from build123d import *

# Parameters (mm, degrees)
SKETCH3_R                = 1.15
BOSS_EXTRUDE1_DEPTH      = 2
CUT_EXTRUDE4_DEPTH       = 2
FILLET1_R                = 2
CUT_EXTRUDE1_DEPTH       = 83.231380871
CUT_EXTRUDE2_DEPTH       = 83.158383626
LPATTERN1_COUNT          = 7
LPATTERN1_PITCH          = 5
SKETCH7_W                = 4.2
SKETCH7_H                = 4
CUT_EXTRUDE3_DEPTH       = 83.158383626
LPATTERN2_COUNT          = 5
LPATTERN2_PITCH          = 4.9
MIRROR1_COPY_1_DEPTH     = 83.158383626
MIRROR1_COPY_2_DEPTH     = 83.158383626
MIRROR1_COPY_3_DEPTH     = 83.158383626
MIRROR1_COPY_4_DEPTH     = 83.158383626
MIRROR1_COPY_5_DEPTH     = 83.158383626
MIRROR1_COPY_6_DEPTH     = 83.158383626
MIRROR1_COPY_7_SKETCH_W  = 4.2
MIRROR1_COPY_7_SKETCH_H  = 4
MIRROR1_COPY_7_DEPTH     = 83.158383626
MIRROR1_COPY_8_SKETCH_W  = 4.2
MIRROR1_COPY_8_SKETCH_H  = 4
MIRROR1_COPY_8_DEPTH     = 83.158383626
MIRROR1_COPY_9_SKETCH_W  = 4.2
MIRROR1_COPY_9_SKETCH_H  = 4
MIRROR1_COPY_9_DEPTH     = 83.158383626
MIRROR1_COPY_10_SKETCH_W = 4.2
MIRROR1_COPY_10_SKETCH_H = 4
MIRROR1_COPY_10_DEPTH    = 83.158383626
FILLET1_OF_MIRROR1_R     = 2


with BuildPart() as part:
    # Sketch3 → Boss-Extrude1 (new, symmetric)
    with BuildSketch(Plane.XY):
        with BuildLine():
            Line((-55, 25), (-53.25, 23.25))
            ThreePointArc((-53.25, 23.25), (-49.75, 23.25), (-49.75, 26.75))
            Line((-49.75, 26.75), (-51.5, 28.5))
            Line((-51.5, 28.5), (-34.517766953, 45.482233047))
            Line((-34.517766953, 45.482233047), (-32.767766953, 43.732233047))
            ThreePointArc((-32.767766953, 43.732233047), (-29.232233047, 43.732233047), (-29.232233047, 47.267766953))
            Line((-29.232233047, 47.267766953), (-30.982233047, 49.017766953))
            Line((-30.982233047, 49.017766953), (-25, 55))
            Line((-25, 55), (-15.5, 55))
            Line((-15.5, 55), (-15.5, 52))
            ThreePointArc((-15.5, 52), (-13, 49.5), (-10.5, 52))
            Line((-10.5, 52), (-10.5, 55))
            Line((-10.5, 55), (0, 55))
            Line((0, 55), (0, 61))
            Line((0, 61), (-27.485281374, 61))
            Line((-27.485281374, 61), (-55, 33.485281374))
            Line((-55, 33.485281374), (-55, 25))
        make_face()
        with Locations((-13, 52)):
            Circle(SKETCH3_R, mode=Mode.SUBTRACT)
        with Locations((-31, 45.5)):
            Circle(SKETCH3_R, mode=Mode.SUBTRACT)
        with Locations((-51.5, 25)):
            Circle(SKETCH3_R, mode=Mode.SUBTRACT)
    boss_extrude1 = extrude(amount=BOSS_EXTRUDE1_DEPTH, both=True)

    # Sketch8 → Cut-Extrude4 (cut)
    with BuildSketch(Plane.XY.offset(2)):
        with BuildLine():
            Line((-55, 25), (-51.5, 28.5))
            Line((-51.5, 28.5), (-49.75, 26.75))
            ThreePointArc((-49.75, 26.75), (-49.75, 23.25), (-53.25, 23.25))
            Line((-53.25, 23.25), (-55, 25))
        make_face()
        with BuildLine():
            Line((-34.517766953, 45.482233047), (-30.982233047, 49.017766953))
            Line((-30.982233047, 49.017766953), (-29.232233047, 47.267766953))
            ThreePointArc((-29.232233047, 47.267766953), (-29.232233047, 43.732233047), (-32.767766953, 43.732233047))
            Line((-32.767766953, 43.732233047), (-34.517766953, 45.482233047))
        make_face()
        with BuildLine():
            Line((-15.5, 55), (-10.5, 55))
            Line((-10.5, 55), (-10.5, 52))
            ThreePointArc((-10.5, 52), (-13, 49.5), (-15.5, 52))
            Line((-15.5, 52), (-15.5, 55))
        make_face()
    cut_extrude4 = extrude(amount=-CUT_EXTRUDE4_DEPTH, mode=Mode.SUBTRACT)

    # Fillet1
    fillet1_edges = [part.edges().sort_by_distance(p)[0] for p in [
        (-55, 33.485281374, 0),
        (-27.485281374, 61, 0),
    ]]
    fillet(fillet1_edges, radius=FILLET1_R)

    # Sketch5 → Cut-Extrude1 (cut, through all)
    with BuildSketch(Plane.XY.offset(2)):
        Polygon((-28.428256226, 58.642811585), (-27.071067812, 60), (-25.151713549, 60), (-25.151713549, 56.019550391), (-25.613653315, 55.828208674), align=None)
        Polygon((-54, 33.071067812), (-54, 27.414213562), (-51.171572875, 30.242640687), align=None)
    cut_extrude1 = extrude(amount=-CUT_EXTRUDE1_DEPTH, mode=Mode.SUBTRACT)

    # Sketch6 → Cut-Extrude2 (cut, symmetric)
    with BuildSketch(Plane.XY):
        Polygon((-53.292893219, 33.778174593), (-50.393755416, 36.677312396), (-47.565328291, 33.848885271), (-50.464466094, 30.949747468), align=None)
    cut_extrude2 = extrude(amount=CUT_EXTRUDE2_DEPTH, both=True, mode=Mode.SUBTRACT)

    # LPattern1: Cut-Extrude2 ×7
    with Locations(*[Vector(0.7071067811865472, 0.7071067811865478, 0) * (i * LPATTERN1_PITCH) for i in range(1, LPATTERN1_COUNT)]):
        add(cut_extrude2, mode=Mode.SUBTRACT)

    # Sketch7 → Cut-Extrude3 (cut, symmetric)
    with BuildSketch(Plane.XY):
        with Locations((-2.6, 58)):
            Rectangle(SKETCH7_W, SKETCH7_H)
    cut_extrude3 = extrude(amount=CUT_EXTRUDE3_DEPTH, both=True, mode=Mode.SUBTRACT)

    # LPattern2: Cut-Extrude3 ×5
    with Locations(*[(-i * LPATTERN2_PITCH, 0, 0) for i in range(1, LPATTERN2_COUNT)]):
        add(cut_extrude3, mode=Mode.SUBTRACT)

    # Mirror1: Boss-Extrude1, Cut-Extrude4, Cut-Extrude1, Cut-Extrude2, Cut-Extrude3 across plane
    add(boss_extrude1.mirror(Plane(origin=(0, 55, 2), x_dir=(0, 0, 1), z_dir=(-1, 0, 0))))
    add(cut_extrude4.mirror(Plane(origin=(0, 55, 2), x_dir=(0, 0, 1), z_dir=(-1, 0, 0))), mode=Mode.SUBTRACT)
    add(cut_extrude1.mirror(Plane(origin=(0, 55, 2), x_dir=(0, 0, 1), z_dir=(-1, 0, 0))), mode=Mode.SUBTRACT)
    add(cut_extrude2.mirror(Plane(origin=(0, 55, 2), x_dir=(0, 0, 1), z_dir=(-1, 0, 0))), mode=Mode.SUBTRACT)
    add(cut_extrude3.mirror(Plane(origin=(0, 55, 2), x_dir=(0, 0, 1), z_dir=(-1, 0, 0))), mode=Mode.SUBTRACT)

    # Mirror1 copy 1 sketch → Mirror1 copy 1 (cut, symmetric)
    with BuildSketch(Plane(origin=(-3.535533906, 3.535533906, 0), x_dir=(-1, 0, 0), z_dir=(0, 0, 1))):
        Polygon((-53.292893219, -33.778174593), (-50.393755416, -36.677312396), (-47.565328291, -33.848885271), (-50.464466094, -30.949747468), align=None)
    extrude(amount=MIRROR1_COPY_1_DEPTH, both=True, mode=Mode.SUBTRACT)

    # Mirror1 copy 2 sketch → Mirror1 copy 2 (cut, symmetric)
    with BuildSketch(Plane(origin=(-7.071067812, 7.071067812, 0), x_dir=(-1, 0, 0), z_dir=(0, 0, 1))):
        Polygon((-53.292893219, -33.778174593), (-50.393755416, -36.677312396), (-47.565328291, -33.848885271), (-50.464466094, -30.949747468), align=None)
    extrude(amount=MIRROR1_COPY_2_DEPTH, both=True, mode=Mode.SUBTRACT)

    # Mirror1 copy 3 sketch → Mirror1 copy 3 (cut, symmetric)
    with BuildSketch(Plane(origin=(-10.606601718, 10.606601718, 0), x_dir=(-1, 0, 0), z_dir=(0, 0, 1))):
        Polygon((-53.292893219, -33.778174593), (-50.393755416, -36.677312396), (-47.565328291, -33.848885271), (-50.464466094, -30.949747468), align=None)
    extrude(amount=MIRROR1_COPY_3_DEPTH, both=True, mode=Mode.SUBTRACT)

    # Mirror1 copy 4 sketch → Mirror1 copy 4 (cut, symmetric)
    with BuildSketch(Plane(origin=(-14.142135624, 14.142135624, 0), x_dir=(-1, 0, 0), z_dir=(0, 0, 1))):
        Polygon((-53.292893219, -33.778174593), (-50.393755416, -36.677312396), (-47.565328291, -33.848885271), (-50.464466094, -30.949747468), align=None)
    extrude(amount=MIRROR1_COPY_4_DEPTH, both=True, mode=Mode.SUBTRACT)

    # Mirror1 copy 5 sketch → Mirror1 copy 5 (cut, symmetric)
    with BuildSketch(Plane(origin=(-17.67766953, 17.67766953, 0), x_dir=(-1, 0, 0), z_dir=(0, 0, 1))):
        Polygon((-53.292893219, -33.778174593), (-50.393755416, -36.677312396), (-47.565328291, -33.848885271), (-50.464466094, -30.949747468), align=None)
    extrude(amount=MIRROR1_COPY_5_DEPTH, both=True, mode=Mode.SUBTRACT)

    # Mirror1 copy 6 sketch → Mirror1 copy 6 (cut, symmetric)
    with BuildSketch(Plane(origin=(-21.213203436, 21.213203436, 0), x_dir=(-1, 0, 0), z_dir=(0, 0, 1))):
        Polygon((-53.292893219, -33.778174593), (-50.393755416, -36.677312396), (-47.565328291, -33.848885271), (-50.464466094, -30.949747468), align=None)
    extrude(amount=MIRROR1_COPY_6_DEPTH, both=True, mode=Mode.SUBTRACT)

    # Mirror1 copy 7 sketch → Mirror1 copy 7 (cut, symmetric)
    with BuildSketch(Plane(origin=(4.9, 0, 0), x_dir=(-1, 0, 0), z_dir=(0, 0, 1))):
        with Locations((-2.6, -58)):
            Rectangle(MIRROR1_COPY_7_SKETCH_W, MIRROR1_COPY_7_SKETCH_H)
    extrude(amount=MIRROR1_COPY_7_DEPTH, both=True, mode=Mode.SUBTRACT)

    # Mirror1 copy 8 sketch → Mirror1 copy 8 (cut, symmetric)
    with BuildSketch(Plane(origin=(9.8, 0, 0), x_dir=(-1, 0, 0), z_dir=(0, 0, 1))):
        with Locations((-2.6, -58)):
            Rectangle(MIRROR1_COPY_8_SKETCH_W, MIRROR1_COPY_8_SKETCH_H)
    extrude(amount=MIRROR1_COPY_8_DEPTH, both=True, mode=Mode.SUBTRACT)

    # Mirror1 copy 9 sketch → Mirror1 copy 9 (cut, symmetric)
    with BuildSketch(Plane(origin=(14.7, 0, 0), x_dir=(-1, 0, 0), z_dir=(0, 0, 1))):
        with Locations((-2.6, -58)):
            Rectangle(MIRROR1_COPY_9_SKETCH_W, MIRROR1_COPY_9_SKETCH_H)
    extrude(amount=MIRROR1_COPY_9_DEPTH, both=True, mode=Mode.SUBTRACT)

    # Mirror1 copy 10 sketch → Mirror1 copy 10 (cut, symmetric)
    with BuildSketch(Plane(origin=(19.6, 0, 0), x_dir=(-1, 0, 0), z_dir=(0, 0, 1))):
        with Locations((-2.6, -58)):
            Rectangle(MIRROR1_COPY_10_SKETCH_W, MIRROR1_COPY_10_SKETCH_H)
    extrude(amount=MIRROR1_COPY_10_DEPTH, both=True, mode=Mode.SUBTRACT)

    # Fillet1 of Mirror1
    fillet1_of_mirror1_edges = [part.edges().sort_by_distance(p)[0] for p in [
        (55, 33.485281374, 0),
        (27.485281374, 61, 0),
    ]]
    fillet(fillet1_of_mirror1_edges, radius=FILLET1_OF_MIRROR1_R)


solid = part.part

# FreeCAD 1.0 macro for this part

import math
import FreeCAD as App
import Part
import Sketcher
Q = App.Units.Quantity


def edges_at(feature, points):
    """Names of the edges that pass closest to the given points."""
    edges = feature.Shape.Edges
    near = lambda p: min(range(len(edges)), key=lambda i: edges[i].distToShape(Part.Vertex(*p))[0])
    return sorted({f"Edge{near(p) + 1}" for p in points})

doc = App.newDocument("Part")
body = doc.addObject("PartDesign::Body", "Body")

# Sketch on XY plane
sketch1 = body.newObject("Sketcher::SketchObject", "Sketch")
sketch1.AttachmentSupport = (doc.getObject("XY_Plane"), [""])
sketch1.MapMode = "FlatFace"
sketch1.addGeometry([
    Part.LineSegment(App.Vector(-55, 25, 0), App.Vector(-53.2, 23.2, 0)),  # 0
    Part.ArcOfCircle(Part.Circle(App.Vector(-51.5, 25, 0), App.Vector(0, 0, 1), 2.5), math.radians(-135), math.radians(45)),  # 1
    Part.LineSegment(App.Vector(-49.8, 26.8, 0), App.Vector(-51.5, 28.5, 0)),  # 2
    Part.LineSegment(App.Vector(-51.5, 28.5, 0), App.Vector(-34.5, 45.5, 0)),  # 3
    Part.LineSegment(App.Vector(-34.5, 45.5, 0), App.Vector(-32.8, 43.7, 0)),  # 4
    Part.ArcOfCircle(Part.Circle(App.Vector(-31, 45.5, 0), App.Vector(0, 0, 1), 2.5), math.radians(-135), math.radians(45)),  # 5
    Part.LineSegment(App.Vector(-29.2, 47.3, 0), App.Vector(-31, 49, 0)),  # 6
    Part.LineSegment(App.Vector(-31, 49, 0), App.Vector(-25, 55, 0)),  # 7
    Part.LineSegment(App.Vector(-25, 55, 0), App.Vector(-15.5, 55, 0)),  # 8
    Part.LineSegment(App.Vector(-15.5, 55, 0), App.Vector(-15.5, 52, 0)),  # 9
    Part.ArcOfCircle(Part.Circle(App.Vector(-13, 52, 0), App.Vector(0, 0, 1), 2.5), math.radians(180), math.radians(360)),  # 10
    Part.LineSegment(App.Vector(-10.5, 52, 0), App.Vector(-10.5, 55, 0)),  # 11
    Part.LineSegment(App.Vector(-10.5, 55, 0), App.Vector(0, 55, 0)),  # 12
    Part.LineSegment(App.Vector(0, 55, 0), App.Vector(0, 61, 0)),  # 13
    Part.LineSegment(App.Vector(0, 61, 0), App.Vector(-27.5, 61, 0)),  # 14
    Part.LineSegment(App.Vector(-27.5, 61, 0), App.Vector(-55, 33.5, 0)),  # 15
    Part.LineSegment(App.Vector(-55, 33.5, 0), App.Vector(-55, 25, 0)),  # 16
    Part.Circle(App.Vector(-51.5, 25, 0), App.Vector(0, 0, 1), 1.1),  # 17
    Part.Circle(App.Vector(-31, 45.5, 0), App.Vector(0, 0, 1), 1.1),  # 18
    Part.Circle(App.Vector(-13, 52, 0), App.Vector(0, 0, 1), 1.1),  # 19
], False)
sketch1.addConstraint([
    Sketcher.Constraint("Tangent", 0, 2, 1, 1),
    Sketcher.Constraint("Tangent", 1, 2, 2, 1),
    Sketcher.Constraint("Coincident", 2, 2, 3, 1),
    Sketcher.Constraint("Coincident", 3, 2, 4, 1),
    Sketcher.Constraint("Tangent", 4, 2, 5, 1),
    Sketcher.Constraint("Tangent", 5, 2, 6, 1),
    Sketcher.Constraint("Coincident", 6, 2, 7, 1),
    Sketcher.Constraint("Coincident", 7, 2, 8, 1),
    Sketcher.Constraint("Coincident", 8, 2, 9, 1),
    Sketcher.Constraint("Tangent", 9, 2, 10, 1),
    Sketcher.Constraint("Tangent", 10, 2, 11, 1),
    Sketcher.Constraint("Coincident", 11, 2, 12, 1),
    Sketcher.Constraint("Coincident", 12, 2, 13, 1),
    Sketcher.Constraint("Coincident", 13, 2, 14, 1),
    Sketcher.Constraint("Coincident", 14, 2, 15, 1),
    Sketcher.Constraint("Coincident", 15, 2, 16, 1),
    Sketcher.Constraint("Coincident", 16, 2, 0, 1),
    Sketcher.Constraint("Horizontal", 8),
    Sketcher.Constraint("Vertical", 9),
    Sketcher.Constraint("Vertical", 11),
    Sketcher.Constraint("Horizontal", 12),
    Sketcher.Constraint("Vertical", 13),
    Sketcher.Constraint("Horizontal", 14),
    Sketcher.Constraint("Vertical", 16),
    Sketcher.Constraint("Coincident", 17, 3, 1, 3),
    Sketcher.Constraint("Coincident", 18, 3, 5, 3),
    Sketcher.Constraint("Coincident", 19, 3, 10, 3),
    Sketcher.Constraint("Equal", 5, 10),
    Sketcher.Constraint("Equal", 17, 18),
    Sketcher.Constraint("Equal", 18, 19),
    Sketcher.Constraint("PointOnObject", 12, 2, -2),
    Sketcher.Constraint("Parallel", 0, 2),
    Sketcher.Constraint("Perpendicular", 2, 3),
    Sketcher.Constraint("Perpendicular", 3, 4),
    Sketcher.Constraint("Parallel", 4, 6),
    Sketcher.Constraint("Perpendicular", 6, 7),
    Sketcher.Constraint("Parallel", 7, 15),
    Sketcher.Constraint("Horizontal", 8, 2, 11, 2),
    Sketcher.Constraint("Horizontal", 17, 3, 16, 2),
    Sketcher.Constraint("Vertical", 17, 3, 2, 2),
    Sketcher.Constraint("Equal", 0, 2),
    Sketcher.Constraint("Equal", 2, 4),
    Sketcher.Constraint("Equal", 4, 6),
    Sketcher.Constraint("Diameter", 17, 2.3),
    Sketcher.Constraint("Radius", 5, 2.5),
    Sketcher.Constraint("DistanceY", 9, 2, 9, 1, 3.0),
    Sketcher.Constraint("DistanceY", 13, 1, 13, 2, 6.0),
    Sketcher.Constraint("DistanceX", 8, 1, 8, 2, 9.5),
    Sketcher.Constraint("DistanceX", 12, 1, 12, 2, 10.5),
    Sketcher.Constraint("DistanceY", -1, 1, 1, 3, 25.0),
    Sketcher.Constraint("DistanceX", 5, 3, -1, 1, 31.0),
    Sketcher.Constraint("DistanceY", -1, 1, 10, 3, 52.0),
    Sketcher.Constraint("DistanceY", 2, 2, 5, 3, 17.0),
    Sketcher.Constraint("DistanceX", 14, 2, 14, 1, 27.485281),
])
pad1 = body.newObject("PartDesign::Pad", "Pad")
pad1.Profile = sketch1
pad1.Length = 4
pad1.Midplane = True

# Sketch on XY plane
sketch2 = body.newObject("Sketcher::SketchObject", "Sketch001")
sketch2.AttachmentSupport = (doc.getObject("XY_Plane"), [""])
sketch2.MapMode = "FlatFace"
sketch2.AttachmentOffset = App.Placement(App.Vector(0, 0, 2), App.Rotation())
sketch2.addGeometry([
    Part.LineSegment(App.Vector(-51.5, 28.5, 0), App.Vector(-55, 25, 0)),  # 0
    Part.LineSegment(App.Vector(-55, 25, 0), App.Vector(-53.2, 23.2, 0)),  # 1
    Part.ArcOfCircle(Part.Circle(App.Vector(-51.5, 25, 0), App.Vector(0, 0, 1), 2.5), math.radians(-135), math.radians(45)),  # 2
    Part.LineSegment(App.Vector(-49.8, 26.8, 0), App.Vector(-51.5, 28.5, 0)),  # 3
    Part.LineSegment(App.Vector(-31, 49, 0), App.Vector(-34.5, 45.5, 0)),  # 4
    Part.LineSegment(App.Vector(-34.5, 45.5, 0), App.Vector(-32.8, 43.7, 0)),  # 5
    Part.ArcOfCircle(Part.Circle(App.Vector(-31, 45.5, 0), App.Vector(0, 0, 1), 2.5), math.radians(-135), math.radians(45)),  # 6
    Part.LineSegment(App.Vector(-29.2, 47.3, 0), App.Vector(-31, 49, 0)),  # 7
    Part.LineSegment(App.Vector(-10.5, 55, 0), App.Vector(-15.5, 55, 0)),  # 8
    Part.LineSegment(App.Vector(-15.5, 55, 0), App.Vector(-15.5, 52, 0)),  # 9
    Part.ArcOfCircle(Part.Circle(App.Vector(-13, 52, 0), App.Vector(0, 0, 1), 2.5), math.radians(180), math.radians(360)),  # 10
    Part.LineSegment(App.Vector(-10.5, 52, 0), App.Vector(-10.5, 55, 0)),  # 11
], False)
sketch2.addConstraint([
    Sketcher.Constraint("Coincident", 0, 2, 1, 1),
    Sketcher.Constraint("Tangent", 1, 2, 2, 1),
    Sketcher.Constraint("Tangent", 2, 2, 3, 1),
    Sketcher.Constraint("Coincident", 3, 2, 0, 1),
    Sketcher.Constraint("Coincident", 4, 2, 5, 1),
    Sketcher.Constraint("Tangent", 5, 2, 6, 1),
    Sketcher.Constraint("Tangent", 6, 2, 7, 1),
    Sketcher.Constraint("Coincident", 7, 2, 4, 1),
    Sketcher.Constraint("Coincident", 8, 2, 9, 1),
    Sketcher.Constraint("Tangent", 9, 2, 10, 1),
    Sketcher.Constraint("Tangent", 10, 2, 11, 1),
    Sketcher.Constraint("Coincident", 11, 2, 8, 1),
    Sketcher.Constraint("Horizontal", 8),
    Sketcher.Constraint("Vertical", 9),
    Sketcher.Constraint("Vertical", 11),
    Sketcher.Constraint("Equal", 6, 10),
    Sketcher.Constraint("Perpendicular", 0, 1),
    Sketcher.Constraint("Parallel", 1, 3),
    Sketcher.Constraint("Perpendicular", 3, 4),
    Sketcher.Constraint("Perpendicular", 4, 5),
    Sketcher.Constraint("Parallel", 5, 7),
    Sketcher.Constraint("Horizontal", 2, 3, 0, 2),
    Sketcher.Constraint("Vertical", 2, 3, 3, 2),
    Sketcher.Constraint("Equal", 3, 5),
    Sketcher.Constraint("Radius", 6, 2.5),
    Sketcher.Constraint("DistanceY", 9, 2, 9, 1, 3.0),
    Sketcher.Constraint("DistanceY", -1, 1, 2, 3, 25.0),
    Sketcher.Constraint("DistanceX", 6, 3, -1, 1, 31.0),
    Sketcher.Constraint("DistanceX", 10, 3, -1, 1, 13.0),
    Sketcher.Constraint("DistanceY", -1, 1, 10, 3, 52.0),
    Sketcher.Constraint("DistanceX", 0, 2, -1, 1, 55.0),
    Sketcher.Constraint("DistanceY", 3, 2, 6, 3, 17.0),
    Sketcher.Constraint("DistanceX", 2, 3, -1, 1, 51.5),
])
pocket1 = body.newObject("PartDesign::Pocket", "Pocket")
pocket1.Profile = sketch2
pocket1.Length = 2
doc.recompute()

fillet = body.newObject("PartDesign::Fillet", "Fillet")
fillet.Base = (pocket1, edges_at(pocket1, [(-55, 33.485, 0), (-27.485, 61, 0)]))
fillet.Radius = 2

# Sketch on XY plane
sketch3 = body.newObject("Sketcher::SketchObject", "Sketch002")
sketch3.AttachmentSupport = (doc.getObject("XY_Plane"), [""])
sketch3.MapMode = "FlatFace"
sketch3.AttachmentOffset = App.Placement(App.Vector(0, 0, 2), App.Rotation())
sketch3.addGeometry([
    Part.LineSegment(App.Vector(-27.1, 60, 0), App.Vector(-28.4, 58.6, 0)),  # 0
    Part.LineSegment(App.Vector(-28.4, 58.6, 0), App.Vector(-25.6, 55.8, 0)),  # 1
    Part.LineSegment(App.Vector(-25.6, 55.8, 0), App.Vector(-25.2, 56, 0)),  # 2
    Part.LineSegment(App.Vector(-25.2, 56, 0), App.Vector(-25.2, 60, 0)),  # 3
    Part.LineSegment(App.Vector(-25.2, 60, 0), App.Vector(-27.1, 60, 0)),  # 4
    Part.LineSegment(App.Vector(-54, 33.1, 0), App.Vector(-54, 27.4, 0)),  # 5
    Part.LineSegment(App.Vector(-54, 27.4, 0), App.Vector(-51.2, 30.2, 0)),  # 6
    Part.LineSegment(App.Vector(-51.2, 30.2, 0), App.Vector(-54, 33.1, 0)),  # 7
], False)
sketch3.addConstraint([
    Sketcher.Constraint("Coincident", 0, 2, 1, 1),
    Sketcher.Constraint("Coincident", 1, 2, 2, 1),
    Sketcher.Constraint("Coincident", 2, 2, 3, 1),
    Sketcher.Constraint("Coincident", 3, 2, 4, 1),
    Sketcher.Constraint("Coincident", 4, 2, 0, 1),
    Sketcher.Constraint("Coincident", 5, 2, 6, 1),
    Sketcher.Constraint("Coincident", 6, 2, 7, 1),
    Sketcher.Constraint("Coincident", 7, 2, 5, 1),
    Sketcher.Constraint("Vertical", 3),
    Sketcher.Constraint("Horizontal", 4),
    Sketcher.Constraint("Vertical", 5),
    Sketcher.Constraint("Perpendicular", 0, 1),
    Sketcher.Constraint("Perpendicular", 1, 6),
    Sketcher.Constraint("Perpendicular", 6, 7),
    Sketcher.Constraint("Equal", 6, 7),
    Sketcher.Constraint("Distance", 6, 4.0),
    Sketcher.Constraint("DistanceY", -1, 1, 3, 2, 60.0),
    Sketcher.Constraint("DistanceX", 5, 2, -1, 1, 54.0),
    Sketcher.Constraint("Angle", 2, Q("22.5 deg")),
    Sketcher.Constraint("Distance", 2, 0.5),
    Sketcher.Constraint("DistanceY", 3, 1, 3, 2, 3.98045),
    Sketcher.Constraint("DistanceY", 5, 2, 0, 2, 31.228598),
    Sketcher.Constraint("Distance", 1, 3.98045),
    Sketcher.Constraint("DistanceX", 6, 2, 1, 2, 25.55792),
])
pocket2 = body.newObject("PartDesign::Pocket", "Pocket001")
pocket2.Profile = sketch3
pocket2.Type = "ThroughAll"

# Sketch on XY plane
sketch4 = body.newObject("Sketcher::SketchObject", "Sketch003")
sketch4.AttachmentSupport = (doc.getObject("XY_Plane"), [""])
sketch4.MapMode = "FlatFace"
sketch4.addGeometry([
    Part.LineSegment(App.Vector(-50.4, 36.7, 0), App.Vector(-53.3, 33.8, 0)),
    Part.LineSegment(App.Vector(-53.3, 33.8, 0), App.Vector(-50.5, 30.9, 0)),
    Part.LineSegment(App.Vector(-50.5, 30.9, 0), App.Vector(-47.6, 33.8, 0)),
    Part.LineSegment(App.Vector(-47.6, 33.8, 0), App.Vector(-50.4, 36.7, 0)),
], False)
sketch4.addConstraint([
    Sketcher.Constraint("Coincident", 0, 2, 1, 1),
    Sketcher.Constraint("Coincident", 1, 2, 2, 1),
    Sketcher.Constraint("Coincident", 2, 2, 3, 1),
    Sketcher.Constraint("Coincident", 3, 2, 0, 1),
    Sketcher.Constraint("Perpendicular", 0, 1),
    Sketcher.Constraint("Perpendicular", 1, 2),
    Sketcher.Constraint("Perpendicular", 2, 3),
    Sketcher.Constraint("Angle", 0, Q("-135 deg")),
    Sketcher.Constraint("Distance", 1, 4.0),
    Sketcher.Constraint("Distance", 0, 4.1),
    Sketcher.Constraint("DistanceX", 2, 2, -1, 1, 47.565328),
    Sketcher.Constraint("DistanceY", -1, 1, 0, 2, 33.778175),
])
pocket3 = body.newObject("PartDesign::Pocket", "Pocket002")
pocket3.Profile = sketch4
pocket3.Length = 166.316767
pocket3.Midplane = True
doc.recompute()

datumline = body.newObject("PartDesign::Line", "DatumLine")
datumline.Placement = App.Placement(App.Vector(0, 0, 0), App.Rotation(App.Vector(0, 0, 1), App.Vector(0.707106781, 0.707106781, 0)))
linearpattern = body.newObject("PartDesign::LinearPattern", "LinearPattern")
linearpattern.Originals = [pocket3]
linearpattern.Direction = (datumline, [""])
linearpattern.Mode = "offset"
linearpattern.Offset = 5
linearpattern.Occurrences = 7
body.Tip = linearpattern

# Sketch on XY plane
sketch5 = body.newObject("Sketcher::SketchObject", "Sketch004")
sketch5.AttachmentSupport = (doc.getObject("XY_Plane"), [""])
sketch5.MapMode = "FlatFace"
sketch5.addGeometry([
    Part.LineSegment(App.Vector(-4.7, 60, 0), App.Vector(-4.7, 56, 0)),
    Part.LineSegment(App.Vector(-4.7, 56, 0), App.Vector(-0.5, 56, 0)),
    Part.LineSegment(App.Vector(-0.5, 56, 0), App.Vector(-0.5, 60, 0)),
    Part.LineSegment(App.Vector(-0.5, 60, 0), App.Vector(-4.7, 60, 0)),
], False)
sketch5.addConstraint([
    Sketcher.Constraint("Coincident", 0, 2, 1, 1),
    Sketcher.Constraint("Coincident", 1, 2, 2, 1),
    Sketcher.Constraint("Coincident", 2, 2, 3, 1),
    Sketcher.Constraint("Coincident", 3, 2, 0, 1),
    Sketcher.Constraint("Vertical", 0),
    Sketcher.Constraint("Horizontal", 1),
    Sketcher.Constraint("Vertical", 2),
    Sketcher.Constraint("Horizontal", 3),
    Sketcher.Constraint("DistanceY", 0, 2, 0, 1, 4.0),
    Sketcher.Constraint("DistanceX", 1, 1, 1, 2, 4.2),
    Sketcher.Constraint("DistanceY", -1, 1, 0, 2, 56.0),
    Sketcher.Constraint("DistanceX", 0, 2, -1, 1, 4.7),
])
pocket4 = body.newObject("PartDesign::Pocket", "Pocket003")
pocket4.Profile = sketch5
pocket4.Length = 166.316767
pocket4.Midplane = True
doc.recompute()

linearpattern2 = body.newObject("PartDesign::LinearPattern", "LinearPattern001")
linearpattern2.Originals = [pocket4]
linearpattern2.Direction = (doc.getObject("X_Axis"), [""])
linearpattern2.Mode = "offset"
linearpattern2.Offset = 4.9
linearpattern2.Occurrences = 5
linearpattern2.Reversed = True
body.Tip = linearpattern2
doc.recompute()

mirrored = body.newObject("PartDesign::Mirrored", "Mirrored")
mirrored.Originals = [pad1, pocket1, pocket2, pocket3, pocket4]
mirrored.MirrorPlane = (doc.getObject("YZ_Plane"), [""])
body.Tip = mirrored

# Sketch on XY plane
sketch6 = body.newObject("Sketcher::SketchObject", "Sketch005")
sketch6.AttachmentSupport = (doc.getObject("XY_Plane"), [""])
sketch6.MapMode = "FlatFace"
sketch6.addGeometry([
    Part.LineSegment(App.Vector(49.8, 37.3, 0), App.Vector(46.9, 40.2, 0)),
    Part.LineSegment(App.Vector(46.9, 40.2, 0), App.Vector(44, 37.4, 0)),
    Part.LineSegment(App.Vector(44, 37.4, 0), App.Vector(46.9, 34.5, 0)),
    Part.LineSegment(App.Vector(46.9, 34.5, 0), App.Vector(49.8, 37.3, 0)),
], False)
sketch6.addConstraint([
    Sketcher.Constraint("Coincident", 0, 2, 1, 1),
    Sketcher.Constraint("Coincident", 1, 2, 2, 1),
    Sketcher.Constraint("Coincident", 2, 2, 3, 1),
    Sketcher.Constraint("Coincident", 3, 2, 0, 1),
    Sketcher.Constraint("Perpendicular", 0, 1),
    Sketcher.Constraint("Perpendicular", 1, 2),
    Sketcher.Constraint("Perpendicular", 2, 3),
    Sketcher.Constraint("Angle", 0, Q("135 deg")),
    Sketcher.Constraint("Distance", 1, 4.0),
    Sketcher.Constraint("Distance", 0, 4.1),
    Sketcher.Constraint("DistanceX", -1, 1, 0, 2, 46.858222),
    Sketcher.Constraint("DistanceY", -1, 1, 1, 2, 37.384419),
])
pocket5 = body.newObject("PartDesign::Pocket", "Pocket004")
pocket5.Profile = sketch6
pocket5.Length = 166.316767
pocket5.Midplane = True

# Sketch on XY plane
sketch7 = body.newObject("Sketcher::SketchObject", "Sketch006")
sketch7.AttachmentSupport = (doc.getObject("XY_Plane"), [""])
sketch7.MapMode = "FlatFace"
sketch7.addGeometry([
    Part.LineSegment(App.Vector(46.2, 40.8, 0), App.Vector(43.3, 43.7, 0)),
    Part.LineSegment(App.Vector(43.3, 43.7, 0), App.Vector(40.5, 40.9, 0)),
    Part.LineSegment(App.Vector(40.5, 40.9, 0), App.Vector(43.4, 38, 0)),
    Part.LineSegment(App.Vector(43.4, 38, 0), App.Vector(46.2, 40.8, 0)),
], False)
sketch7.addConstraint([
    Sketcher.Constraint("Coincident", 0, 2, 1, 1),
    Sketcher.Constraint("Coincident", 1, 2, 2, 1),
    Sketcher.Constraint("Coincident", 2, 2, 3, 1),
    Sketcher.Constraint("Coincident", 3, 2, 0, 1),
    Sketcher.Constraint("Perpendicular", 0, 1),
    Sketcher.Constraint("Perpendicular", 1, 2),
    Sketcher.Constraint("Perpendicular", 2, 3),
    Sketcher.Constraint("Angle", 0, Q("135 deg")),
    Sketcher.Constraint("Distance", 1, 4.0),
    Sketcher.Constraint("Distance", 0, 4.1),
    Sketcher.Constraint("DistanceX", -1, 1, 2, 2, 43.393398),
    Sketcher.Constraint("DistanceY", -1, 1, 0, 2, 43.74838),
])
pocket6 = body.newObject("PartDesign::Pocket", "Pocket005")
pocket6.Profile = sketch7
pocket6.Length = 166.316767
pocket6.Midplane = True

# Sketch on XY plane
sketch8 = body.newObject("Sketcher::SketchObject", "Sketch007")
sketch8.AttachmentSupport = (doc.getObject("XY_Plane"), [""])
sketch8.MapMode = "FlatFace"
sketch8.addGeometry([
    Part.LineSegment(App.Vector(42.7, 44.4, 0), App.Vector(39.8, 47.3, 0)),
    Part.LineSegment(App.Vector(39.8, 47.3, 0), App.Vector(37, 44.5, 0)),
    Part.LineSegment(App.Vector(37, 44.5, 0), App.Vector(39.9, 41.6, 0)),
    Part.LineSegment(App.Vector(39.9, 41.6, 0), App.Vector(42.7, 44.4, 0)),
], False)
sketch8.addConstraint([
    Sketcher.Constraint("Coincident", 0, 2, 1, 1),
    Sketcher.Constraint("Coincident", 1, 2, 2, 1),
    Sketcher.Constraint("Coincident", 2, 2, 3, 1),
    Sketcher.Constraint("Coincident", 3, 2, 0, 1),
    Sketcher.Constraint("Perpendicular", 0, 1),
    Sketcher.Constraint("Perpendicular", 1, 2),
    Sketcher.Constraint("Perpendicular", 2, 3),
    Sketcher.Constraint("Angle", 0, Q("135 deg")),
    Sketcher.Constraint("Distance", 1, 4.0),
    Sketcher.Constraint("Distance", 0, 4.1),
    Sketcher.Constraint("DistanceY", -1, 1, 2, 2, 41.556349),
    Sketcher.Constraint("DistanceX", -1, 1, 3, 2, 42.686292),
])
pocket7 = body.newObject("PartDesign::Pocket", "Pocket006")
pocket7.Profile = sketch8
pocket7.Length = 166.316767
pocket7.Midplane = True

# Sketch on XY plane
sketch9 = body.newObject("Sketcher::SketchObject", "Sketch008")
sketch9.AttachmentSupport = (doc.getObject("XY_Plane"), [""])
sketch9.MapMode = "FlatFace"
sketch9.addGeometry([
    Part.LineSegment(App.Vector(39.2, 47.9, 0), App.Vector(36.3, 50.8, 0)),
    Part.LineSegment(App.Vector(36.3, 50.8, 0), App.Vector(33.4, 48, 0)),
    Part.LineSegment(App.Vector(33.4, 48, 0), App.Vector(36.3, 45.1, 0)),
    Part.LineSegment(App.Vector(36.3, 45.1, 0), App.Vector(39.2, 47.9, 0)),
], False)
sketch9.addConstraint([
    Sketcher.Constraint("Coincident", 0, 2, 1, 1),
    Sketcher.Constraint("Coincident", 1, 2, 2, 1),
    Sketcher.Constraint("Coincident", 2, 2, 3, 1),
    Sketcher.Constraint("Coincident", 3, 2, 0, 1),
    Sketcher.Constraint("Perpendicular", 0, 1),
    Sketcher.Constraint("Perpendicular", 1, 2),
    Sketcher.Constraint("Perpendicular", 2, 3),
    Sketcher.Constraint("Angle", 0, Q("135 deg")),
    Sketcher.Constraint("Distance", 1, 4.0),
    Sketcher.Constraint("Distance", 0, 4.1),
    Sketcher.Constraint("DistanceX", -1, 1, 0, 2, 36.25162),
    Sketcher.Constraint("DistanceY", -1, 1, 0, 2, 50.819448),
])
pocket8 = body.newObject("PartDesign::Pocket", "Pocket007")
pocket8.Profile = sketch9
pocket8.Length = 166.316767
pocket8.Midplane = True

# Sketch on XY plane
sketch10 = body.newObject("Sketcher::SketchObject", "Sketch009")
sketch10.AttachmentSupport = (doc.getObject("XY_Plane"), [""])
sketch10.MapMode = "FlatFace"
sketch10.addGeometry([
    Part.LineSegment(App.Vector(35.6, 51.5, 0), App.Vector(32.7, 54.4, 0)),
    Part.LineSegment(App.Vector(32.7, 54.4, 0), App.Vector(29.9, 51.5, 0)),
    Part.LineSegment(App.Vector(29.9, 51.5, 0), App.Vector(32.8, 48.6, 0)),
    Part.LineSegment(App.Vector(32.8, 48.6, 0), App.Vector(35.6, 51.5, 0)),
], False)
sketch10.addConstraint([
    Sketcher.Constraint("Coincident", 0, 2, 1, 1),
    Sketcher.Constraint("Coincident", 1, 2, 2, 1),
    Sketcher.Constraint("Coincident", 2, 2, 3, 1),
    Sketcher.Constraint("Coincident", 3, 2, 0, 1),
    Sketcher.Constraint("Perpendicular", 0, 1),
    Sketcher.Constraint("Perpendicular", 1, 2),
    Sketcher.Constraint("Perpendicular", 2, 3),
    Sketcher.Constraint("Angle", 0, Q("135 deg")),
    Sketcher.Constraint("Distance", 1, 4.0),
    Sketcher.Constraint("Distance", 0, 4.1),
    Sketcher.Constraint("DistanceY", -1, 1, 0, 2, 54.354982),
    Sketcher.Constraint("DistanceX", -1, 1, 1, 2, 29.887659),
])
pocket9 = body.newObject("PartDesign::Pocket", "Pocket008")
pocket9.Profile = sketch10
pocket9.Length = 166.316767
pocket9.Midplane = True

# Sketch on XY plane
sketch11 = body.newObject("Sketcher::SketchObject", "Sketch010")
sketch11.AttachmentSupport = (doc.getObject("XY_Plane"), [""])
sketch11.MapMode = "FlatFace"
sketch11.addGeometry([
    Part.LineSegment(App.Vector(32.1, 55, 0), App.Vector(29.2, 57.9, 0)),
    Part.LineSegment(App.Vector(29.2, 57.9, 0), App.Vector(26.4, 55.1, 0)),
    Part.LineSegment(App.Vector(26.4, 55.1, 0), App.Vector(29.3, 52.2, 0)),
    Part.LineSegment(App.Vector(29.3, 52.2, 0), App.Vector(32.1, 55, 0)),
], False)
sketch11.addConstraint([
    Sketcher.Constraint("Coincident", 0, 2, 1, 1),
    Sketcher.Constraint("Coincident", 1, 2, 2, 1),
    Sketcher.Constraint("Coincident", 2, 2, 3, 1),
    Sketcher.Constraint("Coincident", 3, 2, 0, 1),
    Sketcher.Constraint("Perpendicular", 0, 1),
    Sketcher.Constraint("Perpendicular", 1, 2),
    Sketcher.Constraint("Perpendicular", 2, 3),
    Sketcher.Constraint("Angle", 0, Q("135 deg")),
    Sketcher.Constraint("Distance", 1, 4.0),
    Sketcher.Constraint("Distance", 0, 4.1),
    Sketcher.Constraint("DistanceX", -1, 1, 0, 2, 29.180552),
    Sketcher.Constraint("DistanceY", -1, 1, 1, 2, 55.062089),
])
pocket10 = body.newObject("PartDesign::Pocket", "Pocket009")
pocket10.Profile = sketch11
pocket10.Length = 166.316767
pocket10.Midplane = True

# Sketch on XY plane
sketch12 = body.newObject("Sketcher::SketchObject", "Sketch011")
sketch12.AttachmentSupport = (doc.getObject("XY_Plane"), [""])
sketch12.MapMode = "FlatFace"
sketch12.addGeometry([
    Part.LineSegment(App.Vector(9.6, 56, 0), App.Vector(9.6, 60, 0)),
    Part.LineSegment(App.Vector(9.6, 60, 0), App.Vector(5.4, 60, 0)),
    Part.LineSegment(App.Vector(5.4, 60, 0), App.Vector(5.4, 56, 0)),
    Part.LineSegment(App.Vector(5.4, 56, 0), App.Vector(9.6, 56, 0)),
], False)
sketch12.addConstraint([
    Sketcher.Constraint("Coincident", 0, 2, 1, 1),
    Sketcher.Constraint("Coincident", 1, 2, 2, 1),
    Sketcher.Constraint("Coincident", 2, 2, 3, 1),
    Sketcher.Constraint("Coincident", 3, 2, 0, 1),
    Sketcher.Constraint("Vertical", 0),
    Sketcher.Constraint("Horizontal", 1),
    Sketcher.Constraint("Vertical", 2),
    Sketcher.Constraint("Horizontal", 3),
    Sketcher.Constraint("DistanceY", 0, 1, 0, 2, 4.0),
    Sketcher.Constraint("DistanceX", 1, 2, 1, 1, 4.2),
    Sketcher.Constraint("DistanceY", -1, 1, 0, 2, 60.0),
    Sketcher.Constraint("DistanceX", -1, 1, 0, 2, 9.6),
])
pocket11 = body.newObject("PartDesign::Pocket", "Pocket010")
pocket11.Profile = sketch12
pocket11.Length = 166.316767
pocket11.Midplane = True

# Sketch on XY plane
sketch13 = body.newObject("Sketcher::SketchObject", "Sketch012")
sketch13.AttachmentSupport = (doc.getObject("XY_Plane"), [""])
sketch13.MapMode = "FlatFace"
sketch13.addGeometry([
    Part.LineSegment(App.Vector(14.5, 56, 0), App.Vector(14.5, 60, 0)),
    Part.LineSegment(App.Vector(14.5, 60, 0), App.Vector(10.3, 60, 0)),
    Part.LineSegment(App.Vector(10.3, 60, 0), App.Vector(10.3, 56, 0)),
    Part.LineSegment(App.Vector(10.3, 56, 0), App.Vector(14.5, 56, 0)),
], False)
sketch13.addConstraint([
    Sketcher.Constraint("Coincident", 0, 2, 1, 1),
    Sketcher.Constraint("Coincident", 1, 2, 2, 1),
    Sketcher.Constraint("Coincident", 2, 2, 3, 1),
    Sketcher.Constraint("Coincident", 3, 2, 0, 1),
    Sketcher.Constraint("Vertical", 0),
    Sketcher.Constraint("Horizontal", 1),
    Sketcher.Constraint("Vertical", 2),
    Sketcher.Constraint("Horizontal", 3),
    Sketcher.Constraint("DistanceY", 0, 1, 0, 2, 4.0),
    Sketcher.Constraint("DistanceX", 1, 2, 1, 1, 4.2),
    Sketcher.Constraint("DistanceY", -1, 1, 0, 2, 60.0),
    Sketcher.Constraint("DistanceX", -1, 1, 0, 2, 14.5),
])
pocket12 = body.newObject("PartDesign::Pocket", "Pocket011")
pocket12.Profile = sketch13
pocket12.Length = 166.316767
pocket12.Midplane = True

# Sketch on XY plane
sketch14 = body.newObject("Sketcher::SketchObject", "Sketch013")
sketch14.AttachmentSupport = (doc.getObject("XY_Plane"), [""])
sketch14.MapMode = "FlatFace"
sketch14.addGeometry([
    Part.LineSegment(App.Vector(19.4, 56, 0), App.Vector(19.4, 60, 0)),
    Part.LineSegment(App.Vector(19.4, 60, 0), App.Vector(15.2, 60, 0)),
    Part.LineSegment(App.Vector(15.2, 60, 0), App.Vector(15.2, 56, 0)),
    Part.LineSegment(App.Vector(15.2, 56, 0), App.Vector(19.4, 56, 0)),
], False)
sketch14.addConstraint([
    Sketcher.Constraint("Coincident", 0, 2, 1, 1),
    Sketcher.Constraint("Coincident", 1, 2, 2, 1),
    Sketcher.Constraint("Coincident", 2, 2, 3, 1),
    Sketcher.Constraint("Coincident", 3, 2, 0, 1),
    Sketcher.Constraint("Vertical", 0),
    Sketcher.Constraint("Horizontal", 1),
    Sketcher.Constraint("Vertical", 2),
    Sketcher.Constraint("Horizontal", 3),
    Sketcher.Constraint("DistanceY", 0, 1, 0, 2, 4.0),
    Sketcher.Constraint("DistanceX", 1, 2, 1, 1, 4.2),
    Sketcher.Constraint("DistanceY", -1, 1, 0, 2, 60.0),
    Sketcher.Constraint("DistanceX", -1, 1, 0, 2, 19.4),
])
pocket13 = body.newObject("PartDesign::Pocket", "Pocket012")
pocket13.Profile = sketch14
pocket13.Length = 166.316767
pocket13.Midplane = True

# Sketch on XY plane
sketch15 = body.newObject("Sketcher::SketchObject", "Sketch014")
sketch15.AttachmentSupport = (doc.getObject("XY_Plane"), [""])
sketch15.MapMode = "FlatFace"
sketch15.addGeometry([
    Part.LineSegment(App.Vector(24.3, 56, 0), App.Vector(24.3, 60, 0)),
    Part.LineSegment(App.Vector(24.3, 60, 0), App.Vector(20.1, 60, 0)),
    Part.LineSegment(App.Vector(20.1, 60, 0), App.Vector(20.1, 56, 0)),
    Part.LineSegment(App.Vector(20.1, 56, 0), App.Vector(24.3, 56, 0)),
], False)
sketch15.addConstraint([
    Sketcher.Constraint("Coincident", 0, 2, 1, 1),
    Sketcher.Constraint("Coincident", 1, 2, 2, 1),
    Sketcher.Constraint("Coincident", 2, 2, 3, 1),
    Sketcher.Constraint("Coincident", 3, 2, 0, 1),
    Sketcher.Constraint("Vertical", 0),
    Sketcher.Constraint("Horizontal", 1),
    Sketcher.Constraint("Vertical", 2),
    Sketcher.Constraint("Horizontal", 3),
    Sketcher.Constraint("DistanceY", 0, 1, 0, 2, 4.0),
    Sketcher.Constraint("DistanceX", 1, 2, 1, 1, 4.2),
    Sketcher.Constraint("DistanceY", -1, 1, 0, 2, 60.0),
    Sketcher.Constraint("DistanceX", -1, 1, 0, 2, 24.3),
])
pocket14 = body.newObject("PartDesign::Pocket", "Pocket013")
pocket14.Profile = sketch15
pocket14.Length = 166.316767
pocket14.Midplane = True
doc.recompute()

fillet2 = body.newObject("PartDesign::Fillet", "Fillet001")
fillet2.Base = (pocket14, edges_at(pocket14, [(55, 33.485, 0), (27.485, 61, 0)]))
fillet2.Radius = 2

doc.recompute()
